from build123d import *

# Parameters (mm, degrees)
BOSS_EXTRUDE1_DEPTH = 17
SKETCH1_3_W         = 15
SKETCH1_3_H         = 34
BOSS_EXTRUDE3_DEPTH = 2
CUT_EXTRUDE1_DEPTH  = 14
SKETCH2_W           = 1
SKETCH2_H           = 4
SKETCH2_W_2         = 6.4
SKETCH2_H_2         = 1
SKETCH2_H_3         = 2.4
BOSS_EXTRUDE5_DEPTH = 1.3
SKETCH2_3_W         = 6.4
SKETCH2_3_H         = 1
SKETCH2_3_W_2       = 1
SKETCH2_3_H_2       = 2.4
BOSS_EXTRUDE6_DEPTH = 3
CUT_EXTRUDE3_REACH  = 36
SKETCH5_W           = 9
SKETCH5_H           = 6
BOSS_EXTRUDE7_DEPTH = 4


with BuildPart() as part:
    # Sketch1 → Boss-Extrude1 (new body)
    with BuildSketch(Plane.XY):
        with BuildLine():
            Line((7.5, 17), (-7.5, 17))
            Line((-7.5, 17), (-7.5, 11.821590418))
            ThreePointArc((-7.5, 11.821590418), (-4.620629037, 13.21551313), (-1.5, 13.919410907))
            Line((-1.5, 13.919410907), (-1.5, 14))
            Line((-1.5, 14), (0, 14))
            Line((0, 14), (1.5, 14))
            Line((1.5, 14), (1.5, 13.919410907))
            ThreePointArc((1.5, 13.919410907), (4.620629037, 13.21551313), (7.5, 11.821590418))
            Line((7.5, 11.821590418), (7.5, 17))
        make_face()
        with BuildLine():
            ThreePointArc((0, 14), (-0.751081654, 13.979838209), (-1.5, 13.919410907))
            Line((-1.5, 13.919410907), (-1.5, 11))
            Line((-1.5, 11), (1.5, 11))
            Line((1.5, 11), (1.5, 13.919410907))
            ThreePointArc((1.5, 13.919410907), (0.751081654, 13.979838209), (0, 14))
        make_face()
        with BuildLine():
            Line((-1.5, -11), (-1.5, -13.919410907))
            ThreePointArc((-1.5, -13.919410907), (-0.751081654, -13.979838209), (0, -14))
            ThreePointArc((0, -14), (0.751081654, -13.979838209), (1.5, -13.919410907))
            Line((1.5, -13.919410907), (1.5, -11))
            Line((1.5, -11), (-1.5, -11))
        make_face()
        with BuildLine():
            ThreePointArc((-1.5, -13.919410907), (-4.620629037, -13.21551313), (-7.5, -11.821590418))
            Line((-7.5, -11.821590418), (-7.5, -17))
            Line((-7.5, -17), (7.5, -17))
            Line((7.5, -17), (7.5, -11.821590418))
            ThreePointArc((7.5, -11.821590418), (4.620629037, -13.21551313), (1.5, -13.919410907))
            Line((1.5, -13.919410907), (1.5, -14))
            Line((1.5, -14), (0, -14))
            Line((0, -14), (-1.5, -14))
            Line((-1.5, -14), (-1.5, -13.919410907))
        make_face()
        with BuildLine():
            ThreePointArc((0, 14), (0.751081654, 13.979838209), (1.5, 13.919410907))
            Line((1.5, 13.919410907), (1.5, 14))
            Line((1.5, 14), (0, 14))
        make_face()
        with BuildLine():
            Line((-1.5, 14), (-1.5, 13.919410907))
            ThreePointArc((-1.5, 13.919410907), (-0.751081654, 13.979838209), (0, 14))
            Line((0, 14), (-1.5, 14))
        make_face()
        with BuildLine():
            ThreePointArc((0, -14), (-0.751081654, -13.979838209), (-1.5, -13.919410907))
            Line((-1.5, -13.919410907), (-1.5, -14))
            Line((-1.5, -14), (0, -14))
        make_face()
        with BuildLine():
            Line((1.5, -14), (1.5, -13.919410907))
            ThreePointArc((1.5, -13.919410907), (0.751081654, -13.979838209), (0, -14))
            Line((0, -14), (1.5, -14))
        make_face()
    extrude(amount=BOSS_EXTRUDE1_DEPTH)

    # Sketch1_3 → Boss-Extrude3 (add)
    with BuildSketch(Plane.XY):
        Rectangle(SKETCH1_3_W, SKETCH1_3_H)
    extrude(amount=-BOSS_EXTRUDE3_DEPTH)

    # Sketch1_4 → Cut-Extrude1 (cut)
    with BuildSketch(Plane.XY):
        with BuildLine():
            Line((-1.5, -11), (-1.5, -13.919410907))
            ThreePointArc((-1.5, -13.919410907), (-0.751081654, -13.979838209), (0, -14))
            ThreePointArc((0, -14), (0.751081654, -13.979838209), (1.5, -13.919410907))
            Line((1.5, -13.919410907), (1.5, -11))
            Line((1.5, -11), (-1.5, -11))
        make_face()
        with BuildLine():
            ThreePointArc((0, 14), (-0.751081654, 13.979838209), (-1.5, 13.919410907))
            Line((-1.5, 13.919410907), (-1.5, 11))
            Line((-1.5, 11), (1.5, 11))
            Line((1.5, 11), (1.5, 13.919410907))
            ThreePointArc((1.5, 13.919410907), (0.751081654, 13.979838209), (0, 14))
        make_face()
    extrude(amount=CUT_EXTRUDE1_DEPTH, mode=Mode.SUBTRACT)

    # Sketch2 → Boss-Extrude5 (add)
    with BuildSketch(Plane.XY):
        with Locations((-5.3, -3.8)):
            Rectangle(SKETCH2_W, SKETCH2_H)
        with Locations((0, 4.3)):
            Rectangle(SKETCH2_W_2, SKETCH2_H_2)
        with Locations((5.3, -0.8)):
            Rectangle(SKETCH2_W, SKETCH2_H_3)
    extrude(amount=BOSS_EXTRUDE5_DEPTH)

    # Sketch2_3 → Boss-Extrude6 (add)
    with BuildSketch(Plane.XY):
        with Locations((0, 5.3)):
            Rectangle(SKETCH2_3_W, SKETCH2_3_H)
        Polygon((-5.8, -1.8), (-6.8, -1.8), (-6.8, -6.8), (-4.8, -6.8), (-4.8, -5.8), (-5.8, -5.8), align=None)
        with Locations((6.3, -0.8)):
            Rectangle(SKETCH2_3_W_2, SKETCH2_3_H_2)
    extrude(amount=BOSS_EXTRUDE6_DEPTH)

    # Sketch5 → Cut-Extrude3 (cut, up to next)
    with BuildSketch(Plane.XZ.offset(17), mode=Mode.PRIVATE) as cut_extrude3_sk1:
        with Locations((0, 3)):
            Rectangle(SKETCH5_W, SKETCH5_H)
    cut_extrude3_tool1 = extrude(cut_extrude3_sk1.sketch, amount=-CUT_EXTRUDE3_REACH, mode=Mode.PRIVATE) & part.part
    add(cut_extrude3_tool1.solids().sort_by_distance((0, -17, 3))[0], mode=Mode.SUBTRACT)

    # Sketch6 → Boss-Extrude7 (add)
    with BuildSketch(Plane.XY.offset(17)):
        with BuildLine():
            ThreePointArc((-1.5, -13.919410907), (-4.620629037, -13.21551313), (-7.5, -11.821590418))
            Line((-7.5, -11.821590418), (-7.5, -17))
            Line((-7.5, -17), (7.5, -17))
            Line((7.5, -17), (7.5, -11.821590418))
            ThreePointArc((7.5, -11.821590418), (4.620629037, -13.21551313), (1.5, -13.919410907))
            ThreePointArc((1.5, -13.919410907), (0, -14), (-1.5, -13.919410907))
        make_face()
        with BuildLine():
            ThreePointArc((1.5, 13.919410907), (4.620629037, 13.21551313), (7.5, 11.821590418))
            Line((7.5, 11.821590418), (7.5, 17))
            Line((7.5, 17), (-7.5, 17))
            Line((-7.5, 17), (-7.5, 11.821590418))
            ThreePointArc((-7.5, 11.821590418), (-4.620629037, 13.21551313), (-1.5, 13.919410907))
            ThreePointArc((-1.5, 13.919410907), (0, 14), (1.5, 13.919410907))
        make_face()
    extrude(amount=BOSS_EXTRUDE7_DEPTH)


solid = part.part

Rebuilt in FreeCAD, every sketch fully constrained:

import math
import FreeCAD as App
import Part
import Sketcher

doc = App.newDocument("Part")
body = doc.addObject("PartDesign::Body", "Body")
body.AllowCompound = True

sketch1 = doc.addObject("Sketcher::SketchObject", "Sketch")
body.addObject(sketch1)
sketch1.AttachmentSupport = (doc.XY_Plane, [""])
sketch1.MapMode = "FlatFace"
sketch1.addGeometry(Part.ArcOfCircle(Part.Circle(App.Vector(0, 0, 0), App.Vector(0, 0, 1), 14), math.radians(96), math.radians(122)), False)
sketch1.addGeometry(Part.LineSegment(App.Vector(-1.5, 13.9, 0), App.Vector(-1.5, 11, 0)), False)
sketch1.addGeometry(Part.LineSegment(App.Vector(-1.5, 11, 0), App.Vector(1.5, 11, 0)), False)
sketch1.addGeometry(Part.LineSegment(App.Vector(1.5, 11, 0), App.Vector(1.5, 13.9, 0)), False)
sketch1.addGeometry(Part.ArcOfCircle(Part.Circle(App.Vector(0, 0, 0), App.Vector(0, 0, 1), 14), math.radians(58), math.radians(84)), False)
sketch1.addGeometry(Part.LineSegment(App.Vector(7.5, 11.8, 0), App.Vector(7.5, 17, 0)), False)
sketch1.addGeometry(Part.LineSegment(App.Vector(7.5, 17, 0), App.Vector(-7.5, 17, 0)), False)
sketch1.addGeometry(Part.LineSegment(App.Vector(-7.5, 17, 0), App.Vector(-7.5, 11.8, 0)), False)
sketch1.addGeometry(Part.ArcOfCircle(Part.Circle(App.Vector(0, 0, 0), App.Vector(0, 0, 1), 14), math.radians(-84), math.radians(-58)), False)
sketch1.addGeometry(Part.LineSegment(App.Vector(1.5, -13.9, 0), App.Vector(1.5, -11, 0)), False)
sketch1.addGeometry(Part.LineSegment(App.Vector(1.5, -11, 0), App.Vector(-1.5, -11, 0)), False)
sketch1.addGeometry(Part.LineSegment(App.Vector(-1.5, -11, 0), App.Vector(-1.5, -13.9, 0)), False)
sketch1.addGeometry(Part.ArcOfCircle(Part.Circle(App.Vector(0, 0, 0), App.Vector(0, 0, 1), 14), math.radians(-122), math.radians(-96)), False)
sketch1.addGeometry(Part.LineSegment(App.Vector(-7.5, -11.8, 0), App.Vector(-7.5, -17, 0)), False)
sketch1.addGeometry(Part.LineSegment(App.Vector(-7.5, -17, 0), App.Vector(7.5, -17, 0)), False)
sketch1.addGeometry(Part.LineSegment(App.Vector(7.5, -17, 0), App.Vector(7.5, -11.8, 0)), False)
sketch1.addConstraint(Sketcher.Constraint("Coincident", 0, 1, 1, 1))
sketch1.addConstraint(Sketcher.Constraint("Coincident", 1, 2, 2, 1))
sketch1.addConstraint(Sketcher.Constraint("Coincident", 2, 2, 3, 1))
sketch1.addConstraint(Sketcher.Constraint("Coincident", 3, 2, 4, 2))
sketch1.addConstraint(Sketcher.Constraint("Coincident", 4, 1, 5, 1))
sketch1.addConstraint(Sketcher.Constraint("Coincident", 5, 2, 6, 1))
sketch1.addConstraint(Sketcher.Constraint("Coincident", 6, 2, 7, 1))
sketch1.addConstraint(Sketcher.Constraint("Coincident", 7, 2, 0, 2))
sketch1.addConstraint(Sketcher.Constraint("Coincident", 8, 1, 9, 1))
sketch1.addConstraint(Sketcher.Constraint("Coincident", 9, 2, 10, 1))
sketch1.addConstraint(Sketcher.Constraint("Coincident", 10, 2, 11, 1))
sketch1.addConstraint(Sketcher.Constraint("Coincident", 11, 2, 12, 2))
sketch1.addConstraint(Sketcher.Constraint("Coincident", 12, 1, 13, 1))
sketch1.addConstraint(Sketcher.Constraint("Coincident", 13, 2, 14, 1))
sketch1.addConstraint(Sketcher.Constraint("Coincident", 14, 2, 15, 1))
sketch1.addConstraint(Sketcher.Constraint("Coincident", 15, 2, 8, 2))
sketch1.addConstraint(Sketcher.Constraint("Vertical", 1))
sketch1.addConstraint(Sketcher.Constraint("Horizontal", 2))
sketch1.addConstraint(Sketcher.Constraint("Vertical", 3))
sketch1.addConstraint(Sketcher.Constraint("Vertical", 5))
sketch1.addConstraint(Sketcher.Constraint("Horizontal", 6))
sketch1.addConstraint(Sketcher.Constraint("Vertical", 7))
sketch1.addConstraint(Sketcher.Constraint("Vertical", 9))
sketch1.addConstraint(Sketcher.Constraint("Horizontal", 10))
sketch1.addConstraint(Sketcher.Constraint("Vertical", 11))
sketch1.addConstraint(Sketcher.Constraint("Vertical", 13))
sketch1.addConstraint(Sketcher.Constraint("Horizontal", 14))
sketch1.addConstraint(Sketcher.Constraint("Vertical", 15))
sketch1.addConstraint(Sketcher.Constraint("Coincident", 0, 3, -1, 1))
sketch1.addConstraint(Sketcher.Constraint("Coincident", 4, 3, -1, 1))
sketch1.addConstraint(Sketcher.Constraint("Coincident", 8, 3, -1, 1))
sketch1.addConstraint(Sketcher.Constraint("Coincident", 12, 3, -1, 1))
sketch1.addConstraint(Sketcher.Constraint("Equal", 0, 4))
sketch1.addConstraint(Sketcher.Constraint("Equal", 4, 8))
sketch1.addConstraint(Sketcher.Constraint("Equal", 8, 12))
sketch1.addConstraint(Sketcher.Constraint("Symmetric", 1, 2, 9, 2, -1, 1))
sketch1.addConstraint(Sketcher.Constraint("Symmetric", 5, 2, 13, 2, -1, 1))
sketch1.addConstraint(Sketcher.Constraint("Horizontal", 0, 1, 3, 2))
sketch1.addConstraint(Sketcher.Constraint("Horizontal", 4, 1, 7, 2))
sketch1.addConstraint(Sketcher.Constraint("Horizontal", 8, 1, 11, 2))
sketch1.addConstraint(Sketcher.Constraint("Horizontal", 12, 1, 15, 2))
sketch1.addConstraint(Sketcher.Constraint("Radius", 0, 14.0))
sketch1.addConstraint(Sketcher.Constraint("DistanceX", 2, 1, 2, 2, 3.0))
sketch1.addConstraint(Sketcher.Constraint("DistanceX", 6, 2, 6, 1, 15.0))
sketch1.addConstraint(Sketcher.Constraint("DistanceY", -1, 1, 1, 2, 11.0))
sketch1.addConstraint(Sketcher.Constraint("DistanceY", -1, 1, 5, 2, 17.0))
pad1 = doc.addObject("PartDesign::Pad", "Pad")
body.addObject(pad1)
pad1.Profile = sketch1
pad1.Length = 17

sketch2 = doc.addObject("Sketcher::SketchObject", "Sketch001")
body.addObject(sketch2)
sketch2.AttachmentSupport = (doc.XY_Plane, [""])
sketch2.MapMode = "FlatFace"
sketch2.addGeometry(Part.LineSegment(App.Vector(-8, 17, 0), App.Vector(-8, -17, 0)), False)
sketch2.addGeometry(Part.LineSegment(App.Vector(-8, -17, 0), App.Vector(8, -17, 0)), False)
sketch2.addGeometry(Part.LineSegment(App.Vector(8, -17, 0), App.Vector(8, 17, 0)), False)
sketch2.addGeometry(Part.LineSegment(App.Vector(8, 17, 0), App.Vector(-8, 17, 0)), False)
sketch2.addConstraint(Sketcher.Constraint("Coincident", 0, 2, 1, 1))
sketch2.addConstraint(Sketcher.Constraint("Coincident", 1, 2, 2, 1))
sketch2.addConstraint(Sketcher.Constraint("Coincident", 2, 2, 3, 1))
sketch2.addConstraint(Sketcher.Constraint("Coincident", 3, 2, 0, 1))
sketch2.addConstraint(Sketcher.Constraint("Vertical", 0))
sketch2.addConstraint(Sketcher.Constraint("Horizontal", 1))
sketch2.addConstraint(Sketcher.Constraint("Vertical", 2))
sketch2.addConstraint(Sketcher.Constraint("Horizontal", 3))
sketch2.addConstraint(Sketcher.Constraint("Symmetric", 0, 2, 2, 2, -1, 1))
sketch2.addConstraint(Sketcher.Constraint("DistanceX", 1, 1, 1, 2, 15.0))
sketch2.addConstraint(Sketcher.Constraint("DistanceY", 0, 2, 0, 1, 34.0))
pad2 = doc.addObject("PartDesign::Pad", "Pad001")
body.addObject(pad2)
pad2.Profile = sketch2
pad2.Length = 2
pad2.Reversed = True

sketch3 = doc.addObject("Sketcher::SketchObject", "Sketch002")
body.addObject(sketch3)
sketch3.AttachmentSupport = (doc.XY_Plane, [""])
sketch3.MapMode = "FlatFace"
sketch3.addGeometry(Part.LineSegment(App.Vector(-1.5, -11, 0), App.Vector(-1.5, -13.9, 0)), False)
sketch3.addGeometry(Part.ArcOfCircle(Part.Circle(App.Vector(0, 0, 0), App.Vector(0, 0, 1), 14), math.radians(-96.15), math.radians(-90)), False)
sketch3.addGeometry(Part.ArcOfCircle(Part.Circle(App.Vector(0, 0, 0), App.Vector(0, 0, 1), 14), math.radians(-90), math.radians(-83.85)), False)
sketch3.addGeometry(Part.LineSegment(App.Vector(1.5, -13.9, 0), App.Vector(1.5, -11, 0)), False)
sketch3.addGeometry(Part.LineSegment(App.Vector(1.5, -11, 0), App.Vector(-1.5, -11, 0)), False)
sketch3.addGeometry(Part.ArcOfCircle(Part.Circle(App.Vector(0, 0, 0), App.Vector(0, 0, 1), 14), math.radians(90), math.radians(96.15)), False)
sketch3.addGeometry(Part.LineSegment(App.Vector(-1.5, 13.9, 0), App.Vector(-1.5, 11, 0)), False)
sketch3.addGeometry(Part.LineSegment(App.Vector(-1.5, 11, 0), App.Vector(1.5, 11, 0)), False)
sketch3.addGeometry(Part.LineSegment(App.Vector(1.5, 11, 0), App.Vector(1.5, 13.9, 0)), False)
sketch3.addGeometry(Part.ArcOfCircle(Part.Circle(App.Vector(0, 0, 0), App.Vector(0, 0, 1), 14), math.radians(83.85), math.radians(90)), False)
sketch3.addConstraint(Sketcher.Constraint("Coincident", 0, 2, 1, 1))
sketch3.addConstraint(Sketcher.Constraint("Tangent", 1, 2, 2, 1))
sketch3.addConstraint(Sketcher.Constraint("Coincident", 2, 2, 3, 1))
sketch3.addConstraint(Sketcher.Constraint("Coincident", 3, 2, 4, 1))
sketch3.addConstraint(Sketcher.Constraint("Coincident", 4, 2, 0, 1))
sketch3.addConstraint(Sketcher.Constraint("Coincident", 5, 2, 6, 1))
sketch3.addConstraint(Sketcher.Constraint("Coincident", 6, 2, 7, 1))
sketch3.addConstraint(Sketcher.Constraint("Coincident", 7, 2, 8, 1))
sketch3.addConstraint(Sketcher.Constraint("Coincident", 8, 2, 9, 1))
sketch3.addConstraint(Sketcher.Constraint("Tangent", 9, 2, 5, 1))
sketch3.addConstraint(Sketcher.Constraint("Vertical", 0))
sketch3.addConstraint(Sketcher.Constraint("Vertical", 3))
sketch3.addConstraint(Sketcher.Constraint("Horizontal", 4))
sketch3.addConstraint(Sketcher.Constraint("Vertical", 6))
sketch3.addConstraint(Sketcher.Constraint("Horizontal", 7))
sketch3.addConstraint(Sketcher.Constraint("Vertical", 8))
sketch3.addConstraint(Sketcher.Constraint("Coincident", 1, 3, -1, 1))
sketch3.addConstraint(Sketcher.Constraint("Coincident", 5, 3, -1, 1))
sketch3.addConstraint(Sketcher.Constraint("Equal", 1, 2))
sketch3.addConstraint(Sketcher.Constraint("Equal", 2, 5))
sketch3.addConstraint(Sketcher.Constraint("Equal", 5, 9))
sketch3.addConstraint(Sketcher.Constraint("Symmetric", 3, 2, 6, 2, -1, 1))
sketch3.addConstraint(Sketcher.Constraint("PointOnObject", 1, 2, -2))
sketch3.addConstraint(Sketcher.Constraint("PointOnObject", 9, 2, -2))
sketch3.addConstraint(Sketcher.Constraint("Horizontal", 0, 2, 2, 2))
sketch3.addConstraint(Sketcher.Constraint("Horizontal", 5, 2, 8, 2))
sketch3.addConstraint(Sketcher.Constraint("Radius", 1, 14.0))
sketch3.addConstraint(Sketcher.Constraint("DistanceX", 4, 2, 4, 1, 3.0))
sketch3.addConstraint(Sketcher.Constraint("DistanceY", 3, 2, -1, 1, 11.0))
pocket1 = doc.addObject("PartDesign::Pocket", "Pocket")
body.addObject(pocket1)
pocket1.Profile = sketch3
pocket1.Length = 14
pocket1.Reversed = True

sketch4 = doc.addObject("Sketcher::SketchObject", "Sketch003")
body.addObject(sketch4)
sketch4.AttachmentSupport = (doc.XY_Plane, [""])
sketch4.MapMode = "FlatFace"
sketch4.addGeometry(Part.LineSegment(App.Vector(-5.8, -1.8, 0), App.Vector(-5.8, -5.8, 0)), False)
sketch4.addGeometry(Part.LineSegment(App.Vector(-5.8, -5.8, 0), App.Vector(-4.8, -5.8, 0)), False)
sketch4.addGeometry(Part.LineSegment(App.Vector(-4.8, -5.8, 0), App.Vector(-4.8, -1.8, 0)), False)
sketch4.addGeometry(Part.LineSegment(App.Vector(-4.8, -1.8, 0), App.Vector(-5.8, -1.8, 0)), False)
sketch4.addGeometry(Part.LineSegment(App.Vector(-3.2, 4.8, 0), App.Vector(-3.2, 3.8, 0)), False)
sketch4.addGeometry(Part.LineSegment(App.Vector(-3.2, 3.8, 0), App.Vector(3.2, 3.8, 0)), False)
sketch4.addGeometry(Part.LineSegment(App.Vector(3.2, 3.8, 0), App.Vector(3.2, 4.8, 0)), False)
sketch4.addGeometry(Part.LineSegment(App.Vector(3.2, 4.8, 0), App.Vector(-3.2, 4.8, 0)), False)
sketch4.addGeometry(Part.LineSegment(App.Vector(4.8, 0.4, 0), App.Vector(4.8, -2, 0)), False)
sketch4.addGeometry(Part.LineSegment(App.Vector(4.8, -2, 0), App.Vector(5.8, -2, 0)), False)
sketch4.addGeometry(Part.LineSegment(App.Vector(5.8, -2, 0), App.Vector(5.8, 0.4, 0)), False)
sketch4.addGeometry(Part.LineSegment(App.Vector(5.8, 0.4, 0), App.Vector(4.8, 0.4, 0)), False)
sketch4.addConstraint(Sketcher.Constraint("Coincident", 0, 2, 1, 1))
sketch4.addConstraint(Sketcher.Constraint("Coincident", 1, 2, 2, 1))
sketch4.addConstraint(Sketcher.Constraint("Coincident", 2, 2, 3, 1))
sketch4.addConstraint(Sketcher.Constraint("Coincident", 3, 2, 0, 1))
sketch4.addConstraint(Sketcher.Constraint("Coincident", 4, 2, 5, 1))
sketch4.addConstraint(Sketcher.Constraint("Coincident", 5, 2, 6, 1))
sketch4.addConstraint(Sketcher.Constraint("Coincident", 6, 2, 7, 1))
sketch4.addConstraint(Sketcher.Constraint("Coincident", 7, 2, 4, 1))
sketch4.addConstraint(Sketcher.Constraint("Coincident", 8, 2, 9, 1))
sketch4.addConstraint(Sketcher.Constraint("Coincident", 9, 2, 10, 1))
sketch4.addConstraint(Sketcher.Constraint("Coincident", 10, 2, 11, 1))
sketch4.addConstraint(Sketcher.Constraint("Coincident", 11, 2, 8, 1))
sketch4.addConstraint(Sketcher.Constraint("Vertical", 0))
sketch4.addConstraint(Sketcher.Constraint("Horizontal", 1))
sketch4.addConstraint(Sketcher.Constraint("Vertical", 2))
sketch4.addConstraint(Sketcher.Constraint("Horizontal", 3))
sketch4.addConstraint(Sketcher.Constraint("Vertical", 4))
sketch4.addConstraint(Sketcher.Constraint("Horizontal", 5))
sketch4.addConstraint(Sketcher.Constraint("Vertical", 6))
sketch4.addConstraint(Sketcher.Constraint("Horizontal", 7))
sketch4.addConstraint(Sketcher.Constraint("Vertical", 8))
sketch4.addConstraint(Sketcher.Constraint("Horizontal", 9))
sketch4.addConstraint(Sketcher.Constraint("Vertical", 10))
sketch4.addConstraint(Sketcher.Constraint("Horizontal", 11))
sketch4.addConstraint(Sketcher.Constraint("Equal", 3, 9))
sketch4.addConstraint(Sketcher.Constraint("Equal", 11, 4))
sketch4.addConstraint(Sketcher.Constraint("DistanceX", 1, 1, 1, 2, 1.0))
sketch4.addConstraint(Sketcher.Constraint("DistanceY", 0, 2, 0, 1, 4.0))
sketch4.addConstraint(Sketcher.Constraint("DistanceX", 5, 1, 5, 2, 6.4))
sketch4.addConstraint(Sketcher.Constraint("DistanceY", 8, 2, 8, 1, 2.4))
sketch4.addConstraint(Sketcher.Constraint("DistanceY", 8, 2, -1, 1, 2.0))
sketch4.addConstraint(Sketcher.Constraint("DistanceX", 2, 2, 5, 2, 8.0))
sketch4.addConstraint(Sketcher.Constraint("DistanceX", 4, 2, 8, 2, 8.0))
sketch4.addConstraint(Sketcher.Constraint("DistanceX", 0, 2, -1, 1, 5.8))
sketch4.addConstraint(Sketcher.Constraint("DistanceY", 0, 2, -1, 1, 5.8))
sketch4.addConstraint(Sketcher.Constraint("DistanceY", -1, 1, 4, 2, 3.8))
pad3 = doc.addObject("PartDesign::Pad", "Pad002")
body.addObject(pad3)
pad3.Profile = sketch4
pad3.Length = 1.3

sketch5 = doc.addObject("Sketcher::SketchObject", "Sketch004")
body.addObject(sketch5)
sketch5.AttachmentSupport = (doc.XY_Plane, [""])
sketch5.MapMode = "FlatFace"
sketch5.addGeometry(Part.LineSegment(App.Vector(-3.2, 5.8, 0), App.Vector(-3.2, 4.8, 0)), False)
sketch5.addGeometry(Part.LineSegment(App.Vector(-3.2, 4.8, 0), App.Vector(3.2, 4.8, 0)), False)
sketch5.addGeometry(Part.LineSegment(App.Vector(3.2, 4.8, 0), App.Vector(3.2, 5.8, 0)), False)
sketch5.addGeometry(Part.LineSegment(App.Vector(3.2, 5.8, 0), App.Vector(-3.2, 5.8, 0)), False)
sketch5.addGeometry(Part.LineSegment(App.Vector(-5.8, -1.8, 0), App.Vector(-6.8, -1.8, 0)), False)
sketch5.addGeometry(Part.LineSegment(App.Vector(-6.8, -1.8, 0), App.Vector(-6.8, -6.8, 0)), False)
sketch5.addGeometry(Part.LineSegment(App.Vector(-6.8, -6.8, 0), App.Vector(-4.8, -6.8, 0)), False)
sketch5.addGeometry(Part.LineSegment(App.Vector(-4.8, -6.8, 0), App.Vector(-4.8, -5.8, 0)), False)
sketch5.addGeometry(Part.LineSegment(App.Vector(-4.8, -5.8, 0), App.Vector(-5.8, -5.8, 0)), False)
sketch5.addGeometry(Part.LineSegment(App.Vector(-5.8, -5.8, 0), App.Vector(-5.8, -1.8, 0)), False)
sketch5.addGeometry(Part.LineSegment(App.Vector(5.8, 0.4, 0), App.Vector(5.8, -2, 0)), False)
sketch5.addGeometry(Part.LineSegment(App.Vector(5.8, -2, 0), App.Vector(6.8, -2, 0)), False)
sketch5.addGeometry(Part.LineSegment(App.Vector(6.8, -2, 0), App.Vector(6.8, 0.4, 0)), False)
sketch5.addGeometry(Part.LineSegment(App.Vector(6.8, 0.4, 0), App.Vector(5.8, 0.4, 0)), False)
sketch5.addConstraint(Sketcher.Constraint("Coincident", 0, 2, 1, 1))
sketch5.addConstraint(Sketcher.Constraint("Coincident", 1, 2, 2, 1))
sketch5.addConstraint(Sketcher.Constraint("Coincident", 2, 2, 3, 1))
sketch5.addConstraint(Sketcher.Constraint("Coincident", 3, 2, 0, 1))
sketch5.addConstraint(Sketcher.Constraint("Coincident", 4, 2, 5, 1))
sketch5.addConstraint(Sketcher.Constraint("Coincident", 5, 2, 6, 1))
sketch5.addConstraint(Sketcher.Constraint("Coincident", 6, 2, 7, 1))
sketch5.addConstraint(Sketcher.Constraint("Coincident", 7, 2, 8, 1))
sketch5.addConstraint(Sketcher.Constraint("Coincident", 8, 2, 9, 1))
sketch5.addConstraint(Sketcher.Constraint("Coincident", 9, 2, 4, 1))
sketch5.addConstraint(Sketcher.Constraint("Coincident", 10, 2, 11, 1))
sketch5.addConstraint(Sketcher.Constraint("Coincident", 11, 2, 12, 1))
sketch5.addConstraint(Sketcher.Constraint("Coincident", 12, 2, 13, 1))
sketch5.addConstraint(Sketcher.Constraint("Coincident", 13, 2, 10, 1))
sketch5.addConstraint(Sketcher.Constraint("Vertical", 0))
sketch5.addConstraint(Sketcher.Constraint("Horizontal", 1))
sketch5.addConstraint(Sketcher.Constraint("Vertical", 2))
sketch5.addConstraint(Sketcher.Constraint("Horizontal", 3))
sketch5.addConstraint(Sketcher.Constraint("Horizontal", 4))
sketch5.addConstraint(Sketcher.Constraint("Vertical", 5))
sketch5.addConstraint(Sketcher.Constraint("Horizontal", 6))
sketch5.addConstraint(Sketcher.Constraint("Vertical", 7))
sketch5.addConstraint(Sketcher.Constraint("Horizontal", 8))
sketch5.addConstraint(Sketcher.Constraint("Vertical", 9))
sketch5.addConstraint(Sketcher.Constraint("Vertical", 10))
sketch5.addConstraint(Sketcher.Constraint("Horizontal", 11))
sketch5.addConstraint(Sketcher.Constraint("Vertical", 12))
sketch5.addConstraint(Sketcher.Constraint("Horizontal", 13))
sketch5.addConstraint(Sketcher.Constraint("Equal", 4, 8))
sketch5.addConstraint(Sketcher.Constraint("Equal", 8, 11))
sketch5.addConstraint(Sketcher.Constraint("Equal", 13, 0))
sketch5.addConstraint(Sketcher.Constraint("Equal", 2, 7))
sketch5.addConstraint(Sketcher.Constraint("DistanceX", 4, 2, 4, 1, 1.0))
sketch5.addConstraint(Sketcher.Constraint("DistanceY", 5, 2, 5, 1, 5.0))
sketch5.addConstraint(Sketcher.Constraint("DistanceX", 1, 1, 1, 2, 6.4))
sketch5.addConstraint(Sketcher.Constraint("DistanceY", 10, 2, 10, 1, 2.4))
sketch5.addConstraint(Sketcher.Constraint("DistanceY", 10, 2, -1, 1, 2.0))
sketch5.addConstraint(Sketcher.Constraint("DistanceX", 4, 2, 1, 2, 10.0))
sketch5.addConstraint(Sketcher.Constraint("DistanceX", 0, 2, 10, 2, 9.0))
sketch5.addConstraint(Sketcher.Constraint("DistanceX", 0, 2, -1, 1, 3.2))
sketch5.addConstraint(Sketcher.Constraint("DistanceY", -1, 1, 0, 2, 4.8))
sketch5.addConstraint(Sketcher.Constraint("DistanceY", 4, 2, -1, 1, 1.8))
pad4 = doc.addObject("PartDesign::Pad", "Pad003")
body.addObject(pad4)
pad4.Profile = sketch5
pad4.Length = 3

sketch6 = doc.addObject("Sketcher::SketchObject", "Sketch005")
body.addObject(sketch6)
sketch6.AttachmentSupport = (doc.XZ_Plane, [""])
sketch6.MapMode = "FlatFace"
sketch6.AttachmentOffset = App.Placement(App.Vector(0, 0, 17), App.Rotation())
sketch6.addGeometry(Part.LineSegment(App.Vector(-4, 6, 0), App.Vector(-4, 0, 0)), False)
sketch6.addGeometry(Part.LineSegment(App.Vector(-4, 0, 0), App.Vector(4, 0, 0)), False)
sketch6.addGeometry(Part.LineSegment(App.Vector(4, 0, 0), App.Vector(4, 6, 0)), False)
sketch6.addGeometry(Part.LineSegment(App.Vector(4, 6, 0), App.Vector(-4, 6, 0)), False)
sketch6.addConstraint(Sketcher.Constraint("Coincident", 0, 2, 1, 1))
sketch6.addConstraint(Sketcher.Constraint("Coincident", 1, 2, 2, 1))
sketch6.addConstraint(Sketcher.Constraint("Coincident", 2, 2, 3, 1))
sketch6.addConstraint(Sketcher.Constraint("Coincident", 3, 2, 0, 1))
sketch6.addConstraint(Sketcher.Constraint("Vertical", 0))
sketch6.addConstraint(Sketcher.Constraint("Horizontal", 1))
sketch6.addConstraint(Sketcher.Constraint("Vertical", 2))
sketch6.addConstraint(Sketcher.Constraint("Horizontal", 3))
sketch6.addConstraint(Sketcher.Constraint("Symmetric", 0, 2, 1, 2, -1, 1))
sketch6.addConstraint(Sketcher.Constraint("DistanceX", 1, 1, 1, 2, 9.0))
sketch6.addConstraint(Sketcher.Constraint("DistanceY", 0, 2, 0, 1, 6.0))
pocket2 = doc.addObject("PartDesign::Pocket", "Pocket001")
body.addObject(pocket2)
pocket2.Profile = sketch6
pocket2.Type = "UpToFirst"

sketch7 = doc.addObject("Sketcher::SketchObject", "Sketch006")
body.addObject(sketch7)
sketch7.AttachmentSupport = (doc.XY_Plane, [""])
sketch7.MapMode = "FlatFace"
sketch7.AttachmentOffset = App.Placement(App.Vector(0, 0, 17), App.Rotation())
sketch7.addGeometry(Part.ArcOfCircle(Part.Circle(App.Vector(0, 0, 0), App.Vector(0, 0, 1), 14), math.radians(-122), math.radians(-96)), False)
sketch7.addGeometry(Part.LineSegment(App.Vector(-7.5, -11.8, 0), App.Vector(-7.5, -17, 0)), False)
sketch7.addGeometry(Part.LineSegment(App.Vector(-7.5, -17, 0), App.Vector(7.5, -17, 0)), False)
sketch7.addGeometry(Part.LineSegment(App.Vector(7.5, -17, 0), App.Vector(7.5, -11.8, 0)), False)
sketch7.addGeometry(Part.ArcOfCircle(Part.Circle(App.Vector(0, 0, 0), App.Vector(0, 0, 1), 14), math.radians(-84), math.radians(-58)), False)
sketch7.addGeometry(Part.ArcOfCircle(Part.Circle(App.Vector(0, 0, 0), App.Vector(0, 0, 1), 14), math.radians(-96.15), math.radians(-83.85)), False)
sketch7.addGeometry(Part.ArcOfCircle(Part.Circle(App.Vector(0, 0, 0), App.Vector(0, 0, 1), 14), math.radians(58), math.radians(84)), False)
sketch7.addGeometry(Part.LineSegment(App.Vector(7.5, 11.8, 0), App.Vector(7.5, 17, 0)), False)
sketch7.addGeometry(Part.LineSegment(App.Vector(7.5, 17, 0), App.Vector(-7.5, 17, 0)), False)
sketch7.addGeometry(Part.LineSegment(App.Vector(-7.5, 17, 0), App.Vector(-7.5, 11.8, 0)), False)
sketch7.addGeometry(Part.ArcOfCircle(Part.Circle(App.Vector(0, 0, 0), App.Vector(0, 0, 1), 14), math.radians(96), math.radians(122)), False)
sketch7.addGeometry(Part.ArcOfCircle(Part.Circle(App.Vector(0, 0, 0), App.Vector(0, 0, 1), 14), math.radians(83.85), math.radians(96.15)), False)
sketch7.addConstraint(Sketcher.Constraint("Coincident", 0, 1, 1, 1))
sketch7.addConstraint(Sketcher.Constraint("Coincident", 1, 2, 2, 1))
sketch7.addConstraint(Sketcher.Constraint("Coincident", 2, 2, 3, 1))
sketch7.addConstraint(Sketcher.Constraint("Coincident", 3, 2, 4, 2))
sketch7.addConstraint(Sketcher.Constraint("Tangent", 4, 1, 5, 2))
sketch7.addConstraint(Sketcher.Constraint("Tangent", 5, 1, 0, 2))
sketch7.addConstraint(Sketcher.Constraint("Coincident", 6, 1, 7, 1))
sketch7.addConstraint(Sketcher.Constraint("Coincident", 7, 2, 8, 1))
sketch7.addConstraint(Sketcher.Constraint("Coincident", 8, 2, 9, 1))
sketch7.addConstraint(Sketcher.Constraint("Coincident", 9, 2, 10, 2))
sketch7.addConstraint(Sketcher.Constraint("Tangent", 10, 1, 11, 2))
sketch7.addConstraint(Sketcher.Constraint("Tangent", 11, 1, 6, 2))
sketch7.addConstraint(Sketcher.Constraint("Vertical", 1))
sketch7.addConstraint(Sketcher.Constraint("Horizontal", 2))
sketch7.addConstraint(Sketcher.Constraint("Vertical", 3))
sketch7.addConstraint(Sketcher.Constraint("Vertical", 7))
sketch7.addConstraint(Sketcher.Constraint("Horizontal", 8))
sketch7.addConstraint(Sketcher.Constraint("Vertical", 9))
sketch7.addConstraint(Sketcher.Constraint("Coincident", 0, 3, -1, 1))
sketch7.addConstraint(Sketcher.Constraint("Coincident", 4, 3, -1, 1))
sketch7.addConstraint(Sketcher.Constraint("Coincident", 6, 3, -1, 1))
sketch7.addConstraint(Sketcher.Constraint("Coincident", 10, 3, -1, 1))
sketch7.addConstraint(Sketcher.Constraint("Equal", 5, 6))
sketch7.addConstraint(Sketcher.Constraint("Symmetric", 1, 2, 7, 2, -1, 1))
sketch7.addConstraint(Sketcher.Constraint("Horizontal", 0, 1, 3, 2))
sketch7.addConstraint(Sketcher.Constraint("Horizontal", 4, 1, 5, 1))
sketch7.addConstraint(Sketcher.Constraint("Horizontal", 6, 1, 9, 2))
sketch7.addConstraint(Sketcher.Constraint("Horizontal", 10, 1, 11, 1))
sketch7.addConstraint(Sketcher.Constraint("Vertical", 5, 1, 10, 1))
sketch7.addConstraint(Sketcher.Constraint("Radius", 0, 14.0))
sketch7.addConstraint(Sketcher.Constraint("DistanceX", 2, 1, 2, 2, 15.0))
sketch7.addConstraint(Sketcher.Constraint("DistanceY", 1, 2, -1, 1, 17.0))
sketch7.addConstraint(Sketcher.Constraint("DistanceX", 4, 1, 3, 2, 6.0))
pad5 = doc.addObject("PartDesign::Pad", "Pad004")
body.addObject(pad5)
pad5.Profile = sketch7
pad5.Length = 4

doc.recompute()
